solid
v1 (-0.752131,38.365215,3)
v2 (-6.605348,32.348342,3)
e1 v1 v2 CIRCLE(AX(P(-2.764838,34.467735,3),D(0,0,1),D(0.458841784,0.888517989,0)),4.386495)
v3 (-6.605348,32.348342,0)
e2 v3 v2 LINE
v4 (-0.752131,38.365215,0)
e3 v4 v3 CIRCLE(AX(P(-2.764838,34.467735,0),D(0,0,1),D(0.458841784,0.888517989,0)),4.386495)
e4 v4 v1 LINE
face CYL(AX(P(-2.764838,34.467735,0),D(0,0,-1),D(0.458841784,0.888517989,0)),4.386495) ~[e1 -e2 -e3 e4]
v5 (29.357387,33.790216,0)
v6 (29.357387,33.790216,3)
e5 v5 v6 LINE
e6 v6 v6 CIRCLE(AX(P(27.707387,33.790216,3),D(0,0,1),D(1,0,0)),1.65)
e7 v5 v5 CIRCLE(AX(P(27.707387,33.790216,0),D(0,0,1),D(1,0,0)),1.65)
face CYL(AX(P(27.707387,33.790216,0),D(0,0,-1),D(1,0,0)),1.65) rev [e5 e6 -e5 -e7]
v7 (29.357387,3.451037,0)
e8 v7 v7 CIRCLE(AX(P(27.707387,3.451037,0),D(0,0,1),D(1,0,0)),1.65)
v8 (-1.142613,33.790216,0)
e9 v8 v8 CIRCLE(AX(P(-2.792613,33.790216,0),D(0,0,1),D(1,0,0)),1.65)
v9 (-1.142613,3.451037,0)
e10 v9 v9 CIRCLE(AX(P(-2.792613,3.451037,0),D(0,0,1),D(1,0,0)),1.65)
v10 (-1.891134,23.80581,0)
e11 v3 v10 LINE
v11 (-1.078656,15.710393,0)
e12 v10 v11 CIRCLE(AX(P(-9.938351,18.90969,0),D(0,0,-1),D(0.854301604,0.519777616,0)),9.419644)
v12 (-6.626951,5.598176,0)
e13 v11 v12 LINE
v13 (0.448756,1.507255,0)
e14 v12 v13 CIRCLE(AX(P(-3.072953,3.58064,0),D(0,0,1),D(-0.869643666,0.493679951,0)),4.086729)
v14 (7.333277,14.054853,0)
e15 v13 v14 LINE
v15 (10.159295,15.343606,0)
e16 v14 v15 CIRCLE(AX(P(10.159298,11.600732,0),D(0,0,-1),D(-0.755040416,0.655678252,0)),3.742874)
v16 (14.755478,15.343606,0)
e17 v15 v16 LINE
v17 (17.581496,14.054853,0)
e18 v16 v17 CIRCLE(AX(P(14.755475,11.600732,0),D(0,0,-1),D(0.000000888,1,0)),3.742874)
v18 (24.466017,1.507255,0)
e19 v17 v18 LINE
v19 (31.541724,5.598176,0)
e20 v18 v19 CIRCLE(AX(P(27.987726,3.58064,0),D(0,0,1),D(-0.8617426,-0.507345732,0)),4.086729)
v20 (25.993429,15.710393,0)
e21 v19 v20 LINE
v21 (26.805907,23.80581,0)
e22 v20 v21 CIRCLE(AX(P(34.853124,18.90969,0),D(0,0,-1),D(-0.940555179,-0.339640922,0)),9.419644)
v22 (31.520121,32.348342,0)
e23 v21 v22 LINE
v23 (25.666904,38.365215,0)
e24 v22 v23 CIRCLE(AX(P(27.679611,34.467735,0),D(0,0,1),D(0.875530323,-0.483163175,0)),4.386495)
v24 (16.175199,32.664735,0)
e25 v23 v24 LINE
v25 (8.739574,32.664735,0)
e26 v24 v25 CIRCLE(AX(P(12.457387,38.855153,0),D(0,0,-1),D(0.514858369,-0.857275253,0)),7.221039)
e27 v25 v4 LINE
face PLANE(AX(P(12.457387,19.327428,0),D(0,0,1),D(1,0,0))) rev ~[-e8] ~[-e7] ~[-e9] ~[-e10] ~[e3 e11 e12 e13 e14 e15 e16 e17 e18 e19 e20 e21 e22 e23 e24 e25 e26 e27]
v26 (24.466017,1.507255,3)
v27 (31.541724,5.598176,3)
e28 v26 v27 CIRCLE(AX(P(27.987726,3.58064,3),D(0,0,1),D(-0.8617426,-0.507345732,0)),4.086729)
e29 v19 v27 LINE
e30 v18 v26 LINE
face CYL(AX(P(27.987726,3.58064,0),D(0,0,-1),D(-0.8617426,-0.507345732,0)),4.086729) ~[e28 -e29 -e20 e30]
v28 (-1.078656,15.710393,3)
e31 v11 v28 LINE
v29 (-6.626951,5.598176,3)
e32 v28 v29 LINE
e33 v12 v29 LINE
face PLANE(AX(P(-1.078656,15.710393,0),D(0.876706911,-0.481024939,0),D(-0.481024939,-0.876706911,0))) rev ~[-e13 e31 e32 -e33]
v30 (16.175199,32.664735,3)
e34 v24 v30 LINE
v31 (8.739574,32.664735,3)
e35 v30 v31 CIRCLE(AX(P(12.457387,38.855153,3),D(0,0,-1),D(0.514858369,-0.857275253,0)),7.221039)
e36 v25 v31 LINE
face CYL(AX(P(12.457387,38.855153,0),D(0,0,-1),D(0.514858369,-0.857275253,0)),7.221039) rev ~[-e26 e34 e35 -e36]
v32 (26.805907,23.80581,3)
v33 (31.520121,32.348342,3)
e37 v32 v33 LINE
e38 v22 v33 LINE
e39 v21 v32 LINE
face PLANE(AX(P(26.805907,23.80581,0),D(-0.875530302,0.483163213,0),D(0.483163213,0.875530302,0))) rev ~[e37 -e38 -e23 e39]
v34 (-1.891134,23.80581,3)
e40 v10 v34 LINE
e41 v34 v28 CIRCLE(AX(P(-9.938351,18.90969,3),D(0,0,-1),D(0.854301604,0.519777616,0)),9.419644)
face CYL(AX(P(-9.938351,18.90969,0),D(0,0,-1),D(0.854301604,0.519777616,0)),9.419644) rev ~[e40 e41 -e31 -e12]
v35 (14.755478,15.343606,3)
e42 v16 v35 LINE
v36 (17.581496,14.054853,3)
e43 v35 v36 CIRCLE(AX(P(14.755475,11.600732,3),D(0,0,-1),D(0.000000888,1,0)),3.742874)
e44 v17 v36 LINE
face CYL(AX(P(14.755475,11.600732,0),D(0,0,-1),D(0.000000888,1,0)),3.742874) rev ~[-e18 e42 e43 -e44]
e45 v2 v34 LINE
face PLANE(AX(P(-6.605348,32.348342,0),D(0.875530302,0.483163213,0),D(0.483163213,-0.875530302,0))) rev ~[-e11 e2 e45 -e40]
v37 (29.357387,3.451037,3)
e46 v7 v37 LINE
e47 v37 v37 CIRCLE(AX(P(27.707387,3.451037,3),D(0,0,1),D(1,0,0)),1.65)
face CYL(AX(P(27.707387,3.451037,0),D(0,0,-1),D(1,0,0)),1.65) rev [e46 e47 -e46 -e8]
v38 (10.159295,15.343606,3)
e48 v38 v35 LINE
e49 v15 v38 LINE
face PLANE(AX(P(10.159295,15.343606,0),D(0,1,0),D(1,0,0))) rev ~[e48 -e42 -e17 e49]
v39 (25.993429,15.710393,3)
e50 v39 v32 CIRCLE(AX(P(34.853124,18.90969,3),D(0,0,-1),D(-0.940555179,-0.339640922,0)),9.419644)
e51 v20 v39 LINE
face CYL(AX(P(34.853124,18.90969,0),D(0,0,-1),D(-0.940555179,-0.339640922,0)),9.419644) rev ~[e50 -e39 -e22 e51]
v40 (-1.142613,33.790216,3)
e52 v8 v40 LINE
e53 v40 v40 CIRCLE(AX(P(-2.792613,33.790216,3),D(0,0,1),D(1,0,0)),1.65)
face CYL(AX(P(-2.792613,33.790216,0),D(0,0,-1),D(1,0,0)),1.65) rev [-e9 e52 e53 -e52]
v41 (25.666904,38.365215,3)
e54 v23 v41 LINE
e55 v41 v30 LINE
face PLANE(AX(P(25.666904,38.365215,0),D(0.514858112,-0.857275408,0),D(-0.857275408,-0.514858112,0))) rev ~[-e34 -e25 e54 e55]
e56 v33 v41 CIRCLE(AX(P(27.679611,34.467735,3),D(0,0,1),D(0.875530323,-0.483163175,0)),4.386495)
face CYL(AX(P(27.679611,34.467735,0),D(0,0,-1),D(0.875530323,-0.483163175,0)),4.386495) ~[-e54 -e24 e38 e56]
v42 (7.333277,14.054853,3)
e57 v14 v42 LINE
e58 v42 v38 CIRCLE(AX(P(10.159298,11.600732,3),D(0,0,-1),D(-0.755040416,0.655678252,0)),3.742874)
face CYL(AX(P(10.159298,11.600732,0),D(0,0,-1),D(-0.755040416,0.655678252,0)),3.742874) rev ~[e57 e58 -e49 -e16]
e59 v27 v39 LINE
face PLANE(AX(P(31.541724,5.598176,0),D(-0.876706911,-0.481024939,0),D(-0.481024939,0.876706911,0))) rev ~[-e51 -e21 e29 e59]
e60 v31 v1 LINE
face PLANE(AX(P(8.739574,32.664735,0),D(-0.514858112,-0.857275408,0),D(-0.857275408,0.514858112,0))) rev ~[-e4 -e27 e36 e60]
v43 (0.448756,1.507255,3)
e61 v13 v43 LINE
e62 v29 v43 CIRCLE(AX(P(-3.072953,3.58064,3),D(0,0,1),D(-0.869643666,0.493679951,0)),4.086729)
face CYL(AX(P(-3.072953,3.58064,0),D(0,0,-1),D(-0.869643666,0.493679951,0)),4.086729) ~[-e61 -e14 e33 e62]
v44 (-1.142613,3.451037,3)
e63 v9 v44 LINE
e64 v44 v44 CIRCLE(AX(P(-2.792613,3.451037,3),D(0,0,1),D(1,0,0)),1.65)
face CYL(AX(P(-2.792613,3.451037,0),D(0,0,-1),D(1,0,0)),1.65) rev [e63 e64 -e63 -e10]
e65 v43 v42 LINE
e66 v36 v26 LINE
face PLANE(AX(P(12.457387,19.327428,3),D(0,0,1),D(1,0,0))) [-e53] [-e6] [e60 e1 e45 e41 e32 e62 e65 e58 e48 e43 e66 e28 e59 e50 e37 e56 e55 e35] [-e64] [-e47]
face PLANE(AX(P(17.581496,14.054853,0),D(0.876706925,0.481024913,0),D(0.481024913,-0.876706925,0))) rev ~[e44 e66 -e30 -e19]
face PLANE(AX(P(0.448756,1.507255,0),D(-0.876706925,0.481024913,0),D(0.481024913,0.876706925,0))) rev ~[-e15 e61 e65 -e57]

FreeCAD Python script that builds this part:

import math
import FreeCAD as App
import Part
import Sketcher

V = App.Vector
Q = App.Units.Quantity

doc = App.newDocument("Part")
body = doc.addObject("PartDesign::Body", "Body")

# Sketch on XY plane
sketch1 = body.newObject("Sketcher::SketchObject", "Sketch")
sketch1.AttachmentSupport = (doc.getObject("XY_Plane"), [""])
sketch1.MapMode = "FlatFace"
sketch1.addGeometry([
    Part.LineSegment(V(25.666904, 38.365215, 0), V(16.175199, 32.664735, 0)),  # 0
    Part.ArcOfCircle(Part.Circle(V(12.457387, 38.855153, 0), V(0, 0, 1), 7.221039), math.radians(-120.987989), math.radians(-59.012011)),  # 1
    Part.LineSegment(V(8.739574, 32.664735, 0), V(-0.752131, 38.365215, 0)),  # 2
    Part.ArcOfCircle(Part.Circle(V(-2.764838, 34.467735, 0), V(0, 0, 1), 4.386495), math.radians(62.687605), math.radians(208.892199)),  # 3
    Part.LineSegment(V(-6.605348, 32.348342, 0), V(-1.891134, 23.80581, 0)),  # 4
    Part.ArcOfCircle(Part.Circle(V(-9.938351, 18.90969, 0), V(0, 0, 1), 9.419644), math.radians(-19.854999), math.radians(31.317336)),  # 5
    Part.LineSegment(V(-1.078656, 15.710393, 0), V(-6.626951, 5.598176, 0)),  # 6
    Part.ArcOfCircle(Part.Circle(V(-3.072953, 3.58064, 0), V(0, 0, 1), 4.086729), math.radians(150.417258), math.radians(329.512809)),  # 7
    Part.LineSegment(V(0.448756, 1.507255, 0), V(7.333277, 14.054853, 0)),  # 8
    Part.ArcOfCircle(Part.Circle(V(10.159298, 11.600732, 0), V(0, 0, 1), 3.742874), math.radians(90.000051), math.radians(139.028901)),  # 9
    Part.LineSegment(V(10.159295, 15.343606, 0), V(14.755478, 15.343606, 0)),  # 10
    Part.ArcOfCircle(Part.Circle(V(14.755475, 11.600732, 0), V(0, 0, 1), 3.742874), math.radians(40.971099), math.radians(89.999949)),  # 11
    Part.LineSegment(V(17.581496, 14.054853, 0), V(24.466017, 1.507255, 0)),  # 12
    Part.ArcOfCircle(Part.Circle(V(27.987726, 3.58064, 0), V(0, 0, 1), 4.086729), math.radians(-149.512809), math.radians(29.582742)),  # 13
    Part.LineSegment(V(31.541724, 5.598176, 0), V(25.993429, 15.710393, 0)),  # 14
    Part.ArcOfCircle(Part.Circle(V(34.853124, 18.90969, 0), V(0, 0, 1), 9.419644), math.radians(148.682664), math.radians(199.854999)),  # 15
    Part.LineSegment(V(26.805907, 23.80581, 0), V(31.520121, 32.348342, 0)),  # 16
    Part.ArcOfCircle(Part.Circle(V(27.679611, 34.467735, 0), V(0, 0, 1), 4.386495), math.radians(-28.892199), math.radians(117.312395)),  # 17
    Part.Circle(V(-2.792613, 3.451037, 0), V(0, 0, 1), 1.65),  # 18
    Part.Circle(V(27.707387, 3.451037, 0), V(0, 0, 1), 1.65),  # 19
    Part.Circle(V(-2.792613, 33.790216, 0), V(0, 0, 1), 1.65),  # 20
    Part.Circle(V(27.707387, 33.790216, 0), V(0, 0, 1), 1.65),  # 21
], False)
sketch1.addConstraint([
    Sketcher.Constraint("Coincident", 0, 2, 1, 2),
    Sketcher.Constraint("Coincident", 1, 1, 2, 1),
    Sketcher.Constraint("Coincident", 2, 2, 3, 1),
    Sketcher.Constraint("Coincident", 3, 2, 4, 1),
    Sketcher.Constraint("Coincident", 4, 2, 5, 2),
    Sketcher.Constraint("Coincident", 5, 1, 6, 1),
    Sketcher.Constraint("Coincident", 6, 2, 7, 1),
    Sketcher.Constraint("Coincident", 7, 2, 8, 1),
    Sketcher.Constraint("Coincident", 8, 2, 9, 2),
    Sketcher.Constraint("Coincident", 9, 1, 10, 1),
    Sketcher.Constraint("Coincident", 10, 2, 11, 2),
    Sketcher.Constraint("Coincident", 11, 1, 12, 1),
    Sketcher.Constraint("Coincident", 12, 2, 13, 1),
    Sketcher.Constraint("Coincident", 13, 2, 14, 1),
    Sketcher.Constraint("Coincident", 14, 2, 15, 2),
    Sketcher.Constraint("Coincident", 15, 1, 16, 1),
    Sketcher.Constraint("Coincident", 16, 2, 17, 1),
    Sketcher.Constraint("Coincident", 17, 2, 0, 1),
    Sketcher.Constraint("Horizontal", 10),
    Sketcher.Constraint("Diameter", 18, Q("3.3 mm")),
    Sketcher.Constraint("Diameter", 19, Q("3.3 mm")),
    Sketcher.Constraint("Diameter", 20, Q("3.3 mm")),
    Sketcher.Constraint("Diameter", 21, Q("3.3 mm")),
    Sketcher.Constraint("DistanceX", 18, 3, 19, 3, Q("30.5 mm")),
    Sketcher.Constraint("Radius", 1, Q("7.221039 mm")),
    Sketcher.Constraint("Radius", 7, Q("4.086729 mm")),
    Sketcher.Constraint("Radius", 13, Q("4.086729 mm")),
    Sketcher.Constraint("DistanceX", 20, 3, 1, 3, Q("15.249999 mm")),
    Sketcher.Constraint("DistanceX", 1, 3, 21, 3, Q("15.250001 mm")),
    Sketcher.Constraint("Radius", 3, Q("4.386495 mm")),
    Sketcher.Constraint("Radius", 5, Q("9.419644 mm")),
    Sketcher.Constraint("Radius", 9, Q("3.742874 mm")),
    Sketcher.Constraint("Radius", 11, Q("3.742874 mm")),
    Sketcher.Constraint("Radius", 15, Q("9.419644 mm")),
    Sketcher.Constraint("Radius", 17, Q("4.386495 mm")),
    Sketcher.Constraint("DistanceY", 0, 2, 17, 3, Q("1.803 mm")),
    Sketcher.Constraint("DistanceY", 0, 2, 3, 3, Q("1.803 mm")),
    Sketcher.Constraint("DistanceY", 1, 1, 3, 3, Q("1.803 mm")),
    Sketcher.Constraint("DistanceY", 20, 3, 2, 2, Q("4.574999 mm")),
    Sketcher.Constraint("DistanceX", 6, 2, 7, 3, Q("3.553998 mm")),
    Sketcher.Constraint("DistanceX", 13, 3, 13, 2, Q("3.553998 mm")),
    Sketcher.Constraint("DistanceY", 21, 3, 17, 2, Q("4.574999 mm")),
    Sketcher.Constraint("DistanceX", -1, 1, 9, 3, Q("10.159298 mm")),
    Sketcher.Constraint("DistanceX", -1, 1, 0, 2, Q("16.175199 mm")),
    Sketcher.Constraint("DistanceX", 5, 3, 7, 3, Q("6.865399 mm")),
    Sketcher.Constraint("DistanceX", 13, 3, 15, 3, Q("6.865399 mm")),
    Sketcher.Constraint("DistanceX", 8, 2, 10, 2, Q("7.422201 mm")),
    Sketcher.Constraint("DistanceX", 9, 1, 11, 1, Q("7.422201 mm")),
    Sketcher.Constraint("DistanceY", 12, 2, 11, 1, Q("12.547598 mm")),
    Sketcher.Constraint("Distance", 4, Q("9.75698 mm")),
    Sketcher.Constraint("Distance", 6, Q("11.534319 mm")),
    Sketcher.Constraint("Distance", 14, Q("11.534319 mm")),
    Sketcher.Constraint("Distance", 16, Q("9.75698 mm")),
    Sketcher.Constraint("DistanceX", 10, 1, 10, 2, Q("4.596183 mm")),
    Sketcher.Constraint("DistanceX", 3, 3, -1, 1, Q("2.764838 mm")),
    Sketcher.Constraint("DistanceX", 5, 3, -1, 1, Q("9.938351 mm")),
    Sketcher.Constraint("DistanceY", -1, 1, 5, 3, Q("18.90969 mm")),
    Sketcher.Constraint("DistanceY", -1, 1, 7, 3, Q("3.58064 mm")),
    Sketcher.Constraint("DistanceY", -1, 1, 9, 3, Q("11.600732 mm")),
    Sketcher.Constraint("DistanceY", -1, 1, 13, 3, Q("3.58064 mm")),
    Sketcher.Constraint("DistanceY", -1, 1, 15, 3, Q("18.90969 mm")),
    Sketcher.Constraint("DistanceX", -1, 1, 17, 3, Q("27.679611 mm")),
    Sketcher.Constraint("DistanceX", 2, 2, -1, 1, Q("0.752131 mm")),
    Sketcher.Constraint("DistanceY", -1, 1, 4, 2, Q("23.80581 mm")),
    Sketcher.Constraint("DistanceX", -1, 1, 14, 2, Q("25.993429 mm")),
    Sketcher.Constraint("DistanceY", -1, 1, 15, 1, Q("23.80581 mm")),
    Sketcher.Constraint("DistanceX", -1, 1, 16, 2, Q("31.520121 mm")),
    Sketcher.Constraint("DistanceY", 3, 3, 1, 3, Q("4.387418 mm")),
    Sketcher.Constraint("DistanceX", 1, 3, 11, 3, Q("2.298088 mm")),
    Sketcher.Constraint("DistanceX", 7, 3, 18, 3, Q("0.28034 mm")),
    Sketcher.Constraint("DistanceY", 21, 3, 17, 3, Q("0.677519 mm")),
    Sketcher.Constraint("DistanceY", 18, 3, 6, 2, Q("2.147139 mm")),
    Sketcher.Constraint("DistanceX", 18, 3, 7, 2, Q("3.241369 mm")),
    Sketcher.Constraint("DistanceX", 8, 2, 9, 3, Q("2.826021 mm")),
    Sketcher.Constraint("DistanceY", 12, 2, 19, 3, Q("1.943782 mm")),
])
pad1 = body.newObject("PartDesign::Pad", "Pad")
pad1.Profile = sketch1
pad1.Length = 3

doc.recompute()
